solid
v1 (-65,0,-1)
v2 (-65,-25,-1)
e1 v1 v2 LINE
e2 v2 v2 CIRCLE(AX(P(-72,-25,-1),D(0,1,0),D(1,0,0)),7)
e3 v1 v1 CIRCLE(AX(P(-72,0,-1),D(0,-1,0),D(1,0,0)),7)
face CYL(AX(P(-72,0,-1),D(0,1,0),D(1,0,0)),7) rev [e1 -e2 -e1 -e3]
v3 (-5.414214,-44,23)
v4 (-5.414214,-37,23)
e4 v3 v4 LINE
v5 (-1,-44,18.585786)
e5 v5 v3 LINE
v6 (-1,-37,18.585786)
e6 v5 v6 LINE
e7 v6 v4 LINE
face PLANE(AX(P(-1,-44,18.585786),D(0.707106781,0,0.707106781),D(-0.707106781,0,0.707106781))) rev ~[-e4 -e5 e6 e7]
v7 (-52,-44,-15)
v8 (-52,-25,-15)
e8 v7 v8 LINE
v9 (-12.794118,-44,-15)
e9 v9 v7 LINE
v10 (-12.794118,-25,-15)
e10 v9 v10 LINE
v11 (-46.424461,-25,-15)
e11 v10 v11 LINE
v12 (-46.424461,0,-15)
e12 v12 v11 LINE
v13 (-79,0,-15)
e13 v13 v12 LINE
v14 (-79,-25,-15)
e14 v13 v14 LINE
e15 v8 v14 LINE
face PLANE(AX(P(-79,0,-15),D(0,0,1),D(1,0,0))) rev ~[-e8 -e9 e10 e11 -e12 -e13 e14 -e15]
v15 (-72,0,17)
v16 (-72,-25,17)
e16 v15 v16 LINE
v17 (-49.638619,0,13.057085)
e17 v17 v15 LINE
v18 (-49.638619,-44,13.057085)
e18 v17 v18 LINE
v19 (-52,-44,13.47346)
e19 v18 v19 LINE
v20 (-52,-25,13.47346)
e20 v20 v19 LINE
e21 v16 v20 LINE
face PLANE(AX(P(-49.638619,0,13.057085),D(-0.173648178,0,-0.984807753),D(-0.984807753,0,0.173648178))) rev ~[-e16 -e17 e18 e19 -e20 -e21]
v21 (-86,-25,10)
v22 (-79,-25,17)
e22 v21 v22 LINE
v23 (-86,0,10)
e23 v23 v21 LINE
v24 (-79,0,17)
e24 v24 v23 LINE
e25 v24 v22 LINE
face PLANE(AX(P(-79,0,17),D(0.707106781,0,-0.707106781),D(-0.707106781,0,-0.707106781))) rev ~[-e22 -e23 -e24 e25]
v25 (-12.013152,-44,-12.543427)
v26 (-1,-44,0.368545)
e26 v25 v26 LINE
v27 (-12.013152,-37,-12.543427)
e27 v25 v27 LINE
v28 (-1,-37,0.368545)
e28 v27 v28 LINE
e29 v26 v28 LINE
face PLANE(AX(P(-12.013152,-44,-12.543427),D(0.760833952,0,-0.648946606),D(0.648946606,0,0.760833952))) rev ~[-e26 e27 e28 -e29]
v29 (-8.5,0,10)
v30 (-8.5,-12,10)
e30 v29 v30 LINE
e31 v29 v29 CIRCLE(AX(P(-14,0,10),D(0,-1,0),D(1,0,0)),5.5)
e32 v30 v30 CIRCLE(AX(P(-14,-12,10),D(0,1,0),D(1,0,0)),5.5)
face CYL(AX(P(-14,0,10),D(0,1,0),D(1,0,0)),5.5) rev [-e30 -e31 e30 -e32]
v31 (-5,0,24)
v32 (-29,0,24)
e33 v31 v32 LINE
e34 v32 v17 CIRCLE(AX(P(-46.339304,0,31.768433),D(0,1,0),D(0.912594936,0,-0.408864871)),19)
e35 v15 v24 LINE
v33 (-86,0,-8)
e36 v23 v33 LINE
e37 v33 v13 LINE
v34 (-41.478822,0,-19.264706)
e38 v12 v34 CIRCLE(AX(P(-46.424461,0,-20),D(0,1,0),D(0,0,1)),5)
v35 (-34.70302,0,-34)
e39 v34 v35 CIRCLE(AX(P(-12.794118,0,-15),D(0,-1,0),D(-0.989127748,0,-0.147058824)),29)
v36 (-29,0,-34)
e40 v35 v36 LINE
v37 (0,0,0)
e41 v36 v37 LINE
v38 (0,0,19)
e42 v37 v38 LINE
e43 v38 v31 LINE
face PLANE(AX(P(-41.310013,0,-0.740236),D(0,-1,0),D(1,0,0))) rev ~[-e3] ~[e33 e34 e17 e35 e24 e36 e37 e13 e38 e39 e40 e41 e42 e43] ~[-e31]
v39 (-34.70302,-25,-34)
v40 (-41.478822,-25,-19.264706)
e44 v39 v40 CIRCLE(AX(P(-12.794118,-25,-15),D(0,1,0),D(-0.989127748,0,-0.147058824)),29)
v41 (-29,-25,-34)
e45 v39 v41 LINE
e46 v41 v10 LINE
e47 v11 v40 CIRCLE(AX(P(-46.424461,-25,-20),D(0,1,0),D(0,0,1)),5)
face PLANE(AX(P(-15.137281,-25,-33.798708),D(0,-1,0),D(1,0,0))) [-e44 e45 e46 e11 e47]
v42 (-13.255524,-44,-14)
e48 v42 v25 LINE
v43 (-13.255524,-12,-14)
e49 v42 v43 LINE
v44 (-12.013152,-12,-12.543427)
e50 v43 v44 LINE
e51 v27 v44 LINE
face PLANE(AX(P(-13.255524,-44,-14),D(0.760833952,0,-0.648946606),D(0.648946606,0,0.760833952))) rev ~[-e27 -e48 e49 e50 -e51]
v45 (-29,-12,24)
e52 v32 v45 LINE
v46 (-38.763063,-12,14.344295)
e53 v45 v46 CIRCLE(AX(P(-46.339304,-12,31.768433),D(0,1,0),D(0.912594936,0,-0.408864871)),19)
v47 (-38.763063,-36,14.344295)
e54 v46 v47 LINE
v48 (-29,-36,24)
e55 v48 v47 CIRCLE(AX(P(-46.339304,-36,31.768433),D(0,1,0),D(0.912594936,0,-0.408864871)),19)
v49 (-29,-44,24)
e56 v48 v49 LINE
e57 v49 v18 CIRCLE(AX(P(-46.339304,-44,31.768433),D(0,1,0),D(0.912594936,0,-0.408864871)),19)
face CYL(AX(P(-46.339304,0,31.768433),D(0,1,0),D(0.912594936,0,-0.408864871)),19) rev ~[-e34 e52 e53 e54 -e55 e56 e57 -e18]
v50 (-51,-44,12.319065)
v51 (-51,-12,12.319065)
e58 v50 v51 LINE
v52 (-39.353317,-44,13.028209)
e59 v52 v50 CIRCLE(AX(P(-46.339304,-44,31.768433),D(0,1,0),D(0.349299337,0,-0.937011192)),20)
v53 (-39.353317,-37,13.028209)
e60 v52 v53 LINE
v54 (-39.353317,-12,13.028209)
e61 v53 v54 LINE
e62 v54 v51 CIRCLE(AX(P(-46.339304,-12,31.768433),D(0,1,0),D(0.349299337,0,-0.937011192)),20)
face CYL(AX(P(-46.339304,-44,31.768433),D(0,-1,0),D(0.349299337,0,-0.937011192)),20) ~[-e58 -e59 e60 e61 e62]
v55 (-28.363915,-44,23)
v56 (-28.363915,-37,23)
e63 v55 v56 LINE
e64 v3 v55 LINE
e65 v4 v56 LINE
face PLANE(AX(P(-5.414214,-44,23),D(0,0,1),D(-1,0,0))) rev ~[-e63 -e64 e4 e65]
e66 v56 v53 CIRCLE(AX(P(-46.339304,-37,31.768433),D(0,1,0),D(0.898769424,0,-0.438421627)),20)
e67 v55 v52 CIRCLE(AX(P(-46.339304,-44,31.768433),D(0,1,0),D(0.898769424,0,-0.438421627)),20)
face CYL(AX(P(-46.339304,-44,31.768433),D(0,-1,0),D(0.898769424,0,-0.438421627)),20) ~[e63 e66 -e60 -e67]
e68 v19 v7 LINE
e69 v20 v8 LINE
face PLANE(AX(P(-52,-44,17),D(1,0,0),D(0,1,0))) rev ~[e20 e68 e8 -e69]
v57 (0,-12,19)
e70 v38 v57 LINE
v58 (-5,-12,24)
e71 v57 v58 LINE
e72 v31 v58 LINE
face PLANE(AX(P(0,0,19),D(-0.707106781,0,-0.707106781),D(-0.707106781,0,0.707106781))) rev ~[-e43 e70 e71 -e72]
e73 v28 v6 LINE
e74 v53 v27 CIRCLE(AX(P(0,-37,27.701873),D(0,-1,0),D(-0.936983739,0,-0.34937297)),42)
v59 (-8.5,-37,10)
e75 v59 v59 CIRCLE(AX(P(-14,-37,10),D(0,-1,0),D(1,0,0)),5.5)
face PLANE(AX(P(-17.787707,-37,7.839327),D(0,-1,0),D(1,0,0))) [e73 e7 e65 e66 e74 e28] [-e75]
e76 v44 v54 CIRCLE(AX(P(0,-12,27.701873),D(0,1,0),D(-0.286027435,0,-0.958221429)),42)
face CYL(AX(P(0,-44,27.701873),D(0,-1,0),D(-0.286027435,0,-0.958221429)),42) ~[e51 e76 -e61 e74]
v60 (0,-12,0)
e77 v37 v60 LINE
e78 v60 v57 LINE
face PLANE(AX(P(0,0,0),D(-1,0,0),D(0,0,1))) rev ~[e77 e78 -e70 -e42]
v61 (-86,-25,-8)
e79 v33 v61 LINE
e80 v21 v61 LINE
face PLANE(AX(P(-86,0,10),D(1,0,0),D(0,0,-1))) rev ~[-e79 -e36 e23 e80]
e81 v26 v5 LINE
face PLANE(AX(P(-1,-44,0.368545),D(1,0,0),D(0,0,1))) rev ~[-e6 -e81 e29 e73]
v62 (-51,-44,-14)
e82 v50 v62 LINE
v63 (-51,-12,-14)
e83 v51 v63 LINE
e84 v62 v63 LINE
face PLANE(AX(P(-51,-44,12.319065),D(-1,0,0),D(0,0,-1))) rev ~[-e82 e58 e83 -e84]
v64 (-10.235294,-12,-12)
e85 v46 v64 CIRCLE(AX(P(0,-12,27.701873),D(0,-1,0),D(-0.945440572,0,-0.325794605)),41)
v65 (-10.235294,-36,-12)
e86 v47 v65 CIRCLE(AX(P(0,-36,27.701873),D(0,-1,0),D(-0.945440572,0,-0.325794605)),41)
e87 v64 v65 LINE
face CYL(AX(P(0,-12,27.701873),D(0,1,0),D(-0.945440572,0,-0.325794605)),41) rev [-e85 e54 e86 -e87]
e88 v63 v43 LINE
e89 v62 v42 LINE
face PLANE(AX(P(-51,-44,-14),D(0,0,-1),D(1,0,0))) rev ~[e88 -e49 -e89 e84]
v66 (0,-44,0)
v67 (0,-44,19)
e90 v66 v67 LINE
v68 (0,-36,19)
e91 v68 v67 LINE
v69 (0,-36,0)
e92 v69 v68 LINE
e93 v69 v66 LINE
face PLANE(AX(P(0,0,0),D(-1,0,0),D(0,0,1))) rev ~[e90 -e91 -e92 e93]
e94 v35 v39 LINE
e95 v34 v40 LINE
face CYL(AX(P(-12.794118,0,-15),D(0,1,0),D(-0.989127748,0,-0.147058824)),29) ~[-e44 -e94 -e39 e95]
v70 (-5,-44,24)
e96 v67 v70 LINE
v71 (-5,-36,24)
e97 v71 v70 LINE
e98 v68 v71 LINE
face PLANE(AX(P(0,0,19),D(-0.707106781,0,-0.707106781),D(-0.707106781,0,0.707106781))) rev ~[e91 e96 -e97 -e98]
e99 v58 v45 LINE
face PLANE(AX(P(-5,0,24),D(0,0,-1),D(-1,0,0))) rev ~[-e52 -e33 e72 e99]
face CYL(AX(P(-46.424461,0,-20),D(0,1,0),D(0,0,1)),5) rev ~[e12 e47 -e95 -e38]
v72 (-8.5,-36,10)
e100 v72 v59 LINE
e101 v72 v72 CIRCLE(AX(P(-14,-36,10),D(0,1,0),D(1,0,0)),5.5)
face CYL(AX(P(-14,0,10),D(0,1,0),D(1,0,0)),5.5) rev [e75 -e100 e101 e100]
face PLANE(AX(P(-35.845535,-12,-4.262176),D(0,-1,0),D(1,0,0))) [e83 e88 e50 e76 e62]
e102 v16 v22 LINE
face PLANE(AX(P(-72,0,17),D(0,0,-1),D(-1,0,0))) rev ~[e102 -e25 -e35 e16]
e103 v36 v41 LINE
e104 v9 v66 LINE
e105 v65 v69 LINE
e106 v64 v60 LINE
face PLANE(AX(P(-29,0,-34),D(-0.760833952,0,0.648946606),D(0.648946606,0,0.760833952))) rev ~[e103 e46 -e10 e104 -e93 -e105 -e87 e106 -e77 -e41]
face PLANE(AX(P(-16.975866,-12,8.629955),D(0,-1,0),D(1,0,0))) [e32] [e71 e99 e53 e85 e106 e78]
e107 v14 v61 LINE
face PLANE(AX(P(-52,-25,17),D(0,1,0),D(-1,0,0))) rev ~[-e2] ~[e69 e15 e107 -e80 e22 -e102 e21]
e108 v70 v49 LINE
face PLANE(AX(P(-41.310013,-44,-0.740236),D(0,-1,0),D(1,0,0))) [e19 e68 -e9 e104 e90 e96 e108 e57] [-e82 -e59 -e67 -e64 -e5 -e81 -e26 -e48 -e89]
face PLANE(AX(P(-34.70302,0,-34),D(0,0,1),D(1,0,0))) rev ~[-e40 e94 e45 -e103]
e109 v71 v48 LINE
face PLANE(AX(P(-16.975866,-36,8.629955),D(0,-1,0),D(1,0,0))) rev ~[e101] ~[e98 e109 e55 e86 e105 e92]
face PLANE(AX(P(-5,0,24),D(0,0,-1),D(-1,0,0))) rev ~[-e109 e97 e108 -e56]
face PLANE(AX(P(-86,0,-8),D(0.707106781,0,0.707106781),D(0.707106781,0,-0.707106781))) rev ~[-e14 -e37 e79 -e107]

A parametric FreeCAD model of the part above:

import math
import FreeCAD as App
import Part
import Sketcher

V = App.Vector
Q = App.Units.Quantity

doc = App.newDocument("Part")
body = doc.addObject("PartDesign::Body", "Body")

# Sketch on XZ plane
sketch1 = body.newObject("Sketcher::SketchObject", "Sketch")
sketch1.AttachmentSupport = (doc.getObject("XZ_Plane"), [""])
sketch1.MapMode = "FlatFace"
sketch1.addGeometry([
    Part.LineSegment(V(-5, 24, 0), V(-29, 24, 0)),  # 0
    Part.ArcOfCircle(Part.Circle(V(-46, 32, 0), V(0, 0, 1), 19), math.radians(-100), math.radians(-24)),  # 1
    Part.LineSegment(V(-50, 13, 0), V(-72, 17, 0)),  # 2
    Part.LineSegment(V(-72, 17, 0), V(-79, 17, 0)),  # 3
    Part.LineSegment(V(-79, 17, 0), V(-86, 10, 0)),  # 4
    Part.LineSegment(V(-86, 10, 0), V(-86, -8, 0)),  # 5
    Part.LineSegment(V(-86, -8, 0), V(-79, -15, 0)),  # 6
    Part.LineSegment(V(-79, -15, 0), V(-46, -15, 0)),  # 7
    Part.ArcOfCircle(Part.Circle(V(-46, -20, 0), V(0, 0, 1), 5), math.radians(8), math.radians(90)),  # 8
    Part.ArcOfCircle(Part.Circle(V(-13, -15, 0), V(0, 0, 1), 29), math.radians(-172), math.radians(-139)),  # 9
    Part.LineSegment(V(-35, -34, 0), V(-29, -34, 0)),  # 10
    Part.LineSegment(V(-29, -34, 0), V(0, 0, 0)),  # 11
    Part.LineSegment(V(0, 0, 0), V(0, 19, 0)),  # 12
    Part.LineSegment(V(0, 19, 0), V(-5, 24, 0)),  # 13
    Part.Circle(V(-72, -1, 0), V(0, 0, 1), 7),  # 14
    Part.Circle(V(-14, 10, 0), V(0, 0, 1), 6),  # 15
], False)
sketch1.addConstraint([
    Sketcher.Constraint("Coincident", 0, 2, 1, 2),
    Sketcher.Constraint("Tangent", 1, 1, 2, 1),
    Sketcher.Constraint("Coincident", 2, 2, 3, 1),
    Sketcher.Constraint("Coincident", 3, 2, 4, 1),
    Sketcher.Constraint("Coincident", 4, 2, 5, 1),
    Sketcher.Constraint("Coincident", 5, 2, 6, 1),
    Sketcher.Constraint("Coincident", 6, 2, 7, 1),
    Sketcher.Constraint("Tangent", 7, 2, 8, 2),
    Sketcher.Constraint("Tangent", 8, 1, 9, 1),
    Sketcher.Constraint("Coincident", 9, 2, 10, 1),
    Sketcher.Constraint("Coincident", 10, 2, 11, 1),
    Sketcher.Constraint("Coincident", 11, 2, 12, 1),
    Sketcher.Constraint("Coincident", 12, 2, 13, 1),
    Sketcher.Constraint("Coincident", 13, 2, 0, 1),
    Sketcher.Constraint("Horizontal", 0),
    Sketcher.Constraint("Horizontal", 3),
    Sketcher.Constraint("Vertical", 5),
    Sketcher.Constraint("Horizontal", 7),
    Sketcher.Constraint("Horizontal", 10),
    Sketcher.Constraint("Vertical", 12),
    Sketcher.Constraint("Coincident", 11, 2, -1, 1),
    Sketcher.Constraint("Perpendicular", 4, 6),
    Sketcher.Constraint("Parallel", 6, 13),
    Sketcher.Constraint("Horizontal", 15, 3, 4, 2),
    Sketcher.Constraint("Horizontal", 9, 3, 6, 2),
    Sketcher.Constraint("Vertical", 14, 3, 2, 2),
    Sketcher.Constraint("Vertical", 3, 2, 6, 2),
    Sketcher.Constraint("Vertical", 0, 2, 10, 2),
    Sketcher.Constraint("Equal", 4, 6),
    Sketcher.Constraint("Diameter", 14, 14.0),
    Sketcher.Constraint("Diameter", 15, 11.0),
    Sketcher.Constraint("Radius", 1, 19.0),
    Sketcher.Constraint("Radius", 8, 5.0),
    Sketcher.Constraint("Radius", 9, 29.0),
    Sketcher.Constraint("DistanceX", 0, 2, 0, 1, 24.0),
    Sketcher.Constraint("DistanceX", 3, 2, 3, 1, 7.0),
    Sketcher.Constraint("DistanceY", 5, 2, 5, 1, 18.0),
    Sketcher.Constraint("DistanceY", 12, 1, 12, 2, 19.0),
    Sketcher.Constraint("Angle", 2, Q("170 deg")),
    Sketcher.Constraint("DistanceY", 8, 3, -1, 1, 20.0),
    Sketcher.Constraint("DistanceX", 14, 3, -1, 1, 72.0),
    Sketcher.Constraint("DistanceY", 14, 3, -1, 1, 1.0),
    Sketcher.Constraint("DistanceX", 15, 3, -1, 1, 14.0),
    Sketcher.Constraint("DistanceY", -1, 1, 15, 3, 10.0),
    Sketcher.Constraint("DistanceX", 0, 2, -1, 1, 29.0),
    Sketcher.Constraint("DistanceY", 9, 2, -1, 1, 34.0),
    Sketcher.Constraint("DistanceX", 7, 1, 7, 2, 32.575539),
])
pad1 = body.newObject("PartDesign::Pad", "Pad")
pad1.Profile = sketch1
pad1.Length = 44

# Sketch on XY plane
sketch2 = body.newObject("Sketcher::SketchObject", "Sketch001")
sketch2.AttachmentSupport = (doc.getObject("XY_Plane"), [""])
sketch2.MapMode = "FlatFace"
sketch2.AttachmentOffset = App.Placement(V(0, 0, 17), App.Rotation())
sketch2.addGeometry([
    Part.LineSegment(V(-52, -44, 0), V(-52, -25, 0)),
    Part.LineSegment(V(-52, -25, 0), V(-86, -25, 0)),
    Part.LineSegment(V(-86, -25, 0), V(-86, -44, 0)),
    Part.LineSegment(V(-86, -44, 0), V(-52, -44, 0)),
], False)
sketch2.addConstraint([
    Sketcher.Constraint("Coincident", 0, 2, 1, 1),
    Sketcher.Constraint("Coincident", 1, 2, 2, 1),
    Sketcher.Constraint("Coincident", 2, 2, 3, 1),
    Sketcher.Constraint("Coincident", 3, 2, 0, 1),
    Sketcher.Constraint("Vertical", 0),
    Sketcher.Constraint("Horizontal", 1),
    Sketcher.Constraint("Vertical", 2),
    Sketcher.Constraint("Horizontal", 3),
    Sketcher.Constraint("DistanceX", 1, 2, 1, 1, 34.0),
    Sketcher.Constraint("DistanceY", 0, 1, 0, 2, 19.0),
    Sketcher.Constraint("DistanceX", 0, 2, -1, 1, 52.0),
    Sketcher.Constraint("DistanceY", 0, 2, -1, 1, 25.0),
])
pocket1 = body.newObject("PartDesign::Pocket", "Pocket")
pocket1.Profile = sketch2
pocket1.Type = "ThroughAll"

# Sketch on XZ plane
sketch3 = body.newObject("Sketcher::SketchObject", "Sketch002")
sketch3.AttachmentSupport = (doc.getObject("XZ_Plane"), [""])
sketch3.MapMode = "FlatFace"
sketch3.AttachmentOffset = App.Placement(V(0, 0, 12), App.Rotation())
sketch3.addGeometry([
    Part.LineSegment(V(-10, -12, 0), V(0, 0, 0)),  # 0
    Part.LineSegment(V(0, 0, 0), V(0, 19, 0)),  # 1
    Part.LineSegment(V(0, 19, 0), V(-5, 24, 0)),  # 2
    Part.LineSegment(V(-5, 24, 0), V(-29, 24, 0)),  # 3
    Part.ArcOfCircle(Part.Circle(V(-46, 32, 0), V(0, 0, 1), 19), math.radians(-66), math.radians(-24)),  # 4
    Part.ArcOfCircle(Part.Circle(V(0, 28, 0), V(0, 0, 1), 41), math.radians(-161), math.radians(-104)),  # 5
], False)
sketch3.addConstraint([
    Sketcher.Constraint("Coincident", 0, 2, 1, 1),
    Sketcher.Constraint("Coincident", 1, 2, 2, 1),
    Sketcher.Constraint("Coincident", 2, 2, 3, 1),
    Sketcher.Constraint("Coincident", 3, 2, 4, 2),
    Sketcher.Constraint("Coincident", 4, 1, 5, 1),
    Sketcher.Constraint("Coincident", 5, 2, 0, 1),
    Sketcher.Constraint("Vertical", 1),
    Sketcher.Constraint("Horizontal", 3),
    Sketcher.Constraint("Coincident", 0, 2, -1, 1),
    Sketcher.Constraint("PointOnObject", 5, 3, -2),
    Sketcher.Constraint("Radius", 4, 19.0),
    Sketcher.Constraint("Radius", 5, 41.0),
    Sketcher.Constraint("DistanceX", 3, 2, 3, 1, 24.0),
    Sketcher.Constraint("DistanceY", 1, 1, 1, 2, 19.0),
    Sketcher.Constraint("Angle", 2, Q("135 deg")),
    Sketcher.Constraint("DistanceX", 2, 2, -1, 1, 5.0),
    Sketcher.Constraint("DistanceY", 5, 2, -1, 1, 12.0),
    Sketcher.Constraint("DistanceY", 5, 3, 4, 3, 4.066559),
    Sketcher.Constraint("DistanceX", 4, 3, 4, 1, 7.57624),
])
pocket2 = body.newObject("PartDesign::Pocket", "Pocket001")
pocket2.Profile = sketch3
pocket2.Length = 24
pocket2.Reversed = True

# Sketch on XZ plane
sketch4 = body.newObject("Sketcher::SketchObject", "Sketch003")
sketch4.AttachmentSupport = (doc.getObject("XZ_Plane"), [""])
sketch4.MapMode = "FlatFace"
sketch4.AttachmentOffset = App.Placement(V(0, 0, 44), App.Rotation())
sketch4.addGeometry([
    Part.LineSegment(V(-52, -15, 0), V(-52, -51, 0)),
    Part.LineSegment(V(-52, -51, 0), V(25, -51, 0)),
    Part.LineSegment(V(25, -51, 0), V(25, -15, 0)),
    Part.LineSegment(V(25, -15, 0), V(-52, -15, 0)),
], False)
sketch4.addConstraint([
    Sketcher.Constraint("Coincident", 0, 2, 1, 1),
    Sketcher.Constraint("Coincident", 1, 2, 2, 1),
    Sketcher.Constraint("Coincident", 2, 2, 3, 1),
    Sketcher.Constraint("Coincident", 3, 2, 0, 1),
    Sketcher.Constraint("Vertical", 0),
    Sketcher.Constraint("Horizontal", 1),
    Sketcher.Constraint("Vertical", 2),
    Sketcher.Constraint("Horizontal", 3),
    Sketcher.Constraint("DistanceX", 0, 2, -1, 1, 52.0),
    Sketcher.Constraint("DistanceY", 2, 2, -1, 1, 15.0),
    Sketcher.Constraint("DistanceY", 0, 2, 0, 1, 36.1184),
    Sketcher.Constraint("DistanceX", 1, 1, 1, 2, 76.731643),
])
pocket3 = body.newObject("PartDesign::Pocket", "Pocket002")
pocket3.Profile = sketch4
pocket3.Length = 19

# Sketch on XZ plane
sketch5 = body.newObject("Sketcher::SketchObject", "Sketch004")
sketch5.AttachmentSupport = (doc.getObject("XZ_Plane"), [""])
sketch5.MapMode = "FlatFace"
sketch5.AttachmentOffset = App.Placement(V(0, 0, 44), App.Rotation())
sketch5.addGeometry([
    Part.ArcOfCircle(Part.Circle(V(-46, 32, 0), V(0, 0, 1), 20), math.radians(-70), math.radians(-26)),  # 0
    Part.ArcOfCircle(Part.Circle(V(0, 28, 0), V(0, 0, 1), 42), math.radians(-160), math.radians(-107)),  # 1
    Part.LineSegment(V(-12, -13, 0), V(-1, 0, 0)),  # 2
    Part.LineSegment(V(-1, 0, 0), V(-1, 19, 0)),  # 3
    Part.LineSegment(V(-1, 19, 0), V(-5, 23, 0)),  # 4
    Part.LineSegment(V(-5, 23, 0), V(-28, 23, 0)),  # 5
    Part.Circle(V(-14, 10, 0), V(0, 0, 1), 6),  # 6
], False)
sketch5.addConstraint([
    Sketcher.Constraint("Coincident", 0, 1, 1, 1),
    Sketcher.Constraint("Coincident", 1, 2, 2, 1),
    Sketcher.Constraint("Coincident", 2, 2, 3, 1),
    Sketcher.Constraint("Coincident", 3, 2, 4, 1),
    Sketcher.Constraint("Coincident", 4, 2, 5, 1),
    Sketcher.Constraint("Coincident", 5, 2, 0, 2),
    Sketcher.Constraint("Vertical", 3),
    Sketcher.Constraint("Horizontal", 5),
    Sketcher.Constraint("PointOnObject", 1, 3, -2),
    Sketcher.Constraint("Diameter", 6, 11.0),
    Sketcher.Constraint("Radius", 0, 20.0),
    Sketcher.Constraint("Radius", 1, 42.0),
    Sketcher.Constraint("Angle", 4, Q("135 deg")),
    Sketcher.Constraint("DistanceX", 6, 3, -1, 1, 14.0),
    Sketcher.Constraint("DistanceY", -1, 1, 6, 3, 10.0),
    Sketcher.Constraint("DistanceX", 2, 2, -1, 1, 1.0),
    Sketcher.Constraint("DistanceY", -1, 1, 4, 2, 23.0),
    Sketcher.Constraint("DistanceX", 5, 2, 5, 1, 22.949702),
    Sketcher.Constraint("DistanceY", 3, 1, 3, 2, 18.217241),
    Sketcher.Constraint("DistanceY", 1, 2, 1, 3, 40.2453),
    Sketcher.Constraint("DistanceX", 0, 1, 5, 2, 10.989402),
    Sketcher.Constraint("Distance", 4, 6.242641),
    Sketcher.Constraint("DistanceY", -1, 1, 0, 1, 13.028209),
])
pocket4 = body.newObject("PartDesign::Pocket", "Pocket003")
pocket4.Profile = sketch5
pocket4.Length = 7

# Sketch on XZ plane
sketch6 = body.newObject("Sketcher::SketchObject", "Sketch005")
sketch6.AttachmentSupport = (doc.getObject("XZ_Plane"), [""])
sketch6.MapMode = "FlatFace"
sketch6.AttachmentOffset = App.Placement(V(0, 0, 44), App.Rotation())
sketch6.addGeometry([
    Part.LineSegment(V(-51, 12.3, 0), V(-51, -14, 0)),  # 0
    Part.LineSegment(V(-51, -14, 0), V(-13.3, -14, 0)),  # 1
    Part.LineSegment(V(-13.3, -14, 0), V(-12, -12.5, 0)),  # 2
    Part.ArcOfCircle(Part.Circle(V(0, 27.7, 0), V(0, 0, 1), 42), math.radians(-160), math.radians(-107)),  # 3
    Part.ArcOfCircle(Part.Circle(V(-46.3, 31.8, 0), V(0, 0, 1), 20), math.radians(-103), math.radians(-70)),  # 4
], False)
sketch6.addConstraint([
    Sketcher.Constraint("Coincident", 0, 2, 1, 1),
    Sketcher.Constraint("Coincident", 1, 2, 2, 1),
    Sketcher.Constraint("Coincident", 2, 2, 3, 2),
    Sketcher.Constraint("Coincident", 3, 1, 4, 2),
    Sketcher.Constraint("Coincident", 4, 1, 0, 1),
    Sketcher.Constraint("Vertical", 0),
    Sketcher.Constraint("Horizontal", 1),
    Sketcher.Constraint("PointOnObject", 3, 3, -2),
    Sketcher.Constraint("Radius", 3, 42.0),
    Sketcher.Constraint("Radius", 4, 20.0),
    Sketcher.Constraint("DistanceX", 0, 2, -1, 1, 51.0),
    Sketcher.Constraint("DistanceY", 0, 2, -1, 1, 14.0),
    Sketcher.Constraint("DistanceY", 2, 2, 3, 3, 40.2453),
    Sketcher.Constraint("DistanceX", 1, 1, 1, 2, 37.744476),
    Sketcher.Constraint("DistanceY", 0, 2, 0, 1, 26.319065),
    Sketcher.Constraint("DistanceY", -1, 1, 3, 1, 13.028209),
    Sketcher.Constraint("DistanceY", 3, 3, 4, 3, 4.066559),
])
pocket5 = body.newObject("PartDesign::Pocket", "Pocket004")
pocket5.Profile = sketch6
pocket5.Length = 32

doc.recompute()
